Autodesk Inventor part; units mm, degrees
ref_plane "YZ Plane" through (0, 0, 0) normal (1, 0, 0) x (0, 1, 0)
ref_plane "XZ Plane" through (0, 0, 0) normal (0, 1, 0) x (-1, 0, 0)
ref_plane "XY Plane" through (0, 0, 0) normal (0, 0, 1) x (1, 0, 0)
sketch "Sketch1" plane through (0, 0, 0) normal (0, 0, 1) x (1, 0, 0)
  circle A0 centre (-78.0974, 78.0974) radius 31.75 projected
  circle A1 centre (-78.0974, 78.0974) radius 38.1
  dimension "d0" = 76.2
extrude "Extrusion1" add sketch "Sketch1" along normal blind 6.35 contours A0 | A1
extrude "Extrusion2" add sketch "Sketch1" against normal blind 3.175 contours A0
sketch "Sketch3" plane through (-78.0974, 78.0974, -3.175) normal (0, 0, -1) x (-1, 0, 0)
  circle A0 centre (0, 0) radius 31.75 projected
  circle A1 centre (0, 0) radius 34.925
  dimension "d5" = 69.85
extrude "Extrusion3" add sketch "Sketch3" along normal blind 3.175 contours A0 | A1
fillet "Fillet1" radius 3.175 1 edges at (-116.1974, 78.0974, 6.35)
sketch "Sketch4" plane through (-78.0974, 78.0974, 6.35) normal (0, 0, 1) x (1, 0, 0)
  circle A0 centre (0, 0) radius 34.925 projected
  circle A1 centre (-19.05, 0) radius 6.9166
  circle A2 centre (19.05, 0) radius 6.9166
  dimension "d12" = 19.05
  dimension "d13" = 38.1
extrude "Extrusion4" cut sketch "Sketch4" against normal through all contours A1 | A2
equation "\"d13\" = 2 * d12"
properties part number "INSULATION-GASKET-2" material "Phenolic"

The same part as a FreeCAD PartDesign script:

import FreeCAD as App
import Part
import Sketcher
Q = App.Units.Quantity


def edges_at(feature, points):
    """Names of the edges that pass closest to the given points."""
    edges = feature.Shape.Edges
    near = lambda p: min(range(len(edges)), key=lambda i: edges[i].distToShape(Part.Vertex(*p))[0])
    return sorted({f"Edge{near(p) + 1}" for p in points})

doc = App.newDocument("Part")
body = doc.addObject("PartDesign::Body", "Body")

# Sketch on XY plane
sketch1 = body.newObject("Sketcher::SketchObject", "Sketch")
sketch1.AttachmentSupport = (doc.getObject("XY_Plane"), [""])
sketch1.MapMode = "FlatFace"
sketch1.addGeometry(Part.Circle(App.Vector(-78, 78, 0), App.Vector(0, 0, 1), 38), False)
sketch1.addConstraint([
    Sketcher.Constraint("Diameter", 0, Q("3 in")),
    Sketcher.Constraint("DistanceX", 0, 3, -1, 1, Q("3.0747 in")),
    Sketcher.Constraint("DistanceY", -1, 1, 0, 3, Q("3.0747 in")),
])
pad1 = body.newObject("PartDesign::Pad", "Pad")
pad1.Profile = sketch1
pad1.Length = Q("0.25 in")

# Sketch on XY plane
sketch2 = body.newObject("Sketcher::SketchObject", "Sketch001")
sketch2.AttachmentSupport = (doc.getObject("XY_Plane"), [""])
sketch2.MapMode = "FlatFace"
sketch2.addGeometry(Part.Circle(App.Vector(-78, 78, 0), App.Vector(0, 0, 1), 32), False)
sketch2.addConstraint([
    Sketcher.Constraint("Diameter", 0, Q("2.5 in")),
    Sketcher.Constraint("DistanceX", 0, 3, -1, 1, Q("3.0747 in")),
    Sketcher.Constraint("DistanceY", -1, 1, 0, 3, Q("3.0747 in")),
])
pad2 = body.newObject("PartDesign::Pad", "Pad001")
pad2.Profile = sketch2
pad2.Length = Q("0.125 in")
pad2.Reversed = True

# Sketch on XY plane
sketch3 = body.newObject("Sketcher::SketchObject", "Sketch002")
sketch3.AttachmentSupport = (doc.getObject("XY_Plane"), [""])
sketch3.MapMode = "FlatFace"
sketch3.AttachmentOffset = App.Placement(App.Vector(0, 0, -0.125 * 25.4), App.Rotation())
sketch3.addGeometry(Part.Circle(App.Vector(-78, 78, 0), App.Vector(0, 0, 1), 35), False)
sketch3.addConstraint([
    Sketcher.Constraint("Diameter", 0, Q("2.75 in")),
    Sketcher.Constraint("DistanceX", 0, 3, -1, 1, Q("3.0747 in")),
    Sketcher.Constraint("DistanceY", -1, 1, 0, 3, Q("3.0747 in")),
])
pad3 = body.newObject("PartDesign::Pad", "Pad002")
pad3.Profile = sketch3
pad3.Length = Q("0.125 in")
pad3.Reversed = True
doc.recompute()

fillet = body.newObject("PartDesign::Fillet", "Fillet")
fillet.Base = (pad3, edges_at(pad3, [(-116.197, 78.097, 6.35)]))
fillet.Radius = Q("0.125 in")

# Sketch on XY plane
sketch4 = body.newObject("Sketcher::SketchObject", "Sketch003")
sketch4.AttachmentSupport = (doc.getObject("XY_Plane"), [""])
sketch4.MapMode = "FlatFace"
sketch4.AttachmentOffset = App.Placement(App.Vector(0, 0, 0.25 * 25.4), App.Rotation())
sketch4.addGeometry([
    Part.Circle(App.Vector(-97, 78, 0), App.Vector(0, 0, 1), 7),
    Part.Circle(App.Vector(-59, 78, 0), App.Vector(0, 0, 1), 7),
], False)
sketch4.addConstraint([
    Sketcher.Constraint("Equal", 0, 1),
    Sketcher.Constraint("Horizontal", 0, 3, 1, 3),
    Sketcher.Constraint("DistanceX", 0, 3, 1, 3, Q("1.5 in")),
    Sketcher.Constraint("Diameter", 0, 13.8332),
    Sketcher.Constraint("DistanceX", 0, 3, -1, 1, Q("3.8247 in")),
    Sketcher.Constraint("DistanceY", -1, 1, 0, 3, Q("3.0747 in")),
])
pocket1 = body.newObject("PartDesign::Pocket", "Pocket")
pocket1.Profile = sketch4
pocket1.Type = "ThroughAll"

doc.recompute()
